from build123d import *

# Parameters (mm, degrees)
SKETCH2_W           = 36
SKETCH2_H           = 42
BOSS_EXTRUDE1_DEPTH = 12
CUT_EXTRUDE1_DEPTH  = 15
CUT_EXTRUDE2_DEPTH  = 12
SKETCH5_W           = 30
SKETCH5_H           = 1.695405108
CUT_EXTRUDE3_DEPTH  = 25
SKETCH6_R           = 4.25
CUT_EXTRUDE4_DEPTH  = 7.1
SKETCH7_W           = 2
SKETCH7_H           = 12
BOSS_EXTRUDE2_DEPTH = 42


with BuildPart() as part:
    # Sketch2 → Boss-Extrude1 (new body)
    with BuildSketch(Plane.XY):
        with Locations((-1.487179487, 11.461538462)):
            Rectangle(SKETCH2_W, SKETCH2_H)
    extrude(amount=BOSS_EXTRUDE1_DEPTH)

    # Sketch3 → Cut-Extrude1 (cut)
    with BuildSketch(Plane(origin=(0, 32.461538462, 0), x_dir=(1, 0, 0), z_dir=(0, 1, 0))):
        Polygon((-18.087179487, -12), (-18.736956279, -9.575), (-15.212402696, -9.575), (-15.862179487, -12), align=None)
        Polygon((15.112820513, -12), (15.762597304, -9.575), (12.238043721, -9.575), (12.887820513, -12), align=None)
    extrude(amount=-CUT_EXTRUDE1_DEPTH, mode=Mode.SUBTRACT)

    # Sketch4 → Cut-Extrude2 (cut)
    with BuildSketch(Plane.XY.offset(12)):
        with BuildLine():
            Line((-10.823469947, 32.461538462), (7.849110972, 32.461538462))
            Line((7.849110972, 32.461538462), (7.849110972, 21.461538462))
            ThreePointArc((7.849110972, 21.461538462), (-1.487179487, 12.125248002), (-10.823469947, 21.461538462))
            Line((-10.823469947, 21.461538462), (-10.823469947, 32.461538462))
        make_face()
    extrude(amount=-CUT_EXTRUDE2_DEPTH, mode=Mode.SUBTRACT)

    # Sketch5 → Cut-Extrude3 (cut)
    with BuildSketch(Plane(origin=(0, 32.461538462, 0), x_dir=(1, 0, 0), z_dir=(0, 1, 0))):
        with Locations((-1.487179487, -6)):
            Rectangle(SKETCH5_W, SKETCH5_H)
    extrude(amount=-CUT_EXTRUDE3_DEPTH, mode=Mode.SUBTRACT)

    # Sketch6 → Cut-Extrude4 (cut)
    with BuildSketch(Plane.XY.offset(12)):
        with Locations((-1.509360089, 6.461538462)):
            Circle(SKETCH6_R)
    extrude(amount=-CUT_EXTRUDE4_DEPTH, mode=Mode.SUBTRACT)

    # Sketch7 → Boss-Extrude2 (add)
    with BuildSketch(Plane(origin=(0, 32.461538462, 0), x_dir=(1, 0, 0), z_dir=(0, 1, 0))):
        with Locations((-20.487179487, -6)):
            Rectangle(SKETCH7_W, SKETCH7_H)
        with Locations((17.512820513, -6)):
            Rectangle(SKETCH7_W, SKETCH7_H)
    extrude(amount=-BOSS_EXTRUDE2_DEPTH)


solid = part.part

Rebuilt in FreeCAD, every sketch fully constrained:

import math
import FreeCAD as App
import Part
import Sketcher
Q = App.Units.Quantity

doc = App.newDocument("Part")
body = doc.addObject("PartDesign::Body", "Body")

# Sketch on XY plane
sketch1 = body.newObject("Sketcher::SketchObject", "Sketch")
sketch1.AttachmentSupport = (doc.getObject("XY_Plane"), [""])
sketch1.MapMode = "FlatFace"
sketch1.addGeometry([
    Part.LineSegment(App.Vector(-19, 32, 0), App.Vector(-19, -10, 0)),
    Part.LineSegment(App.Vector(-19, -10, 0), App.Vector(17, -10, 0)),
    Part.LineSegment(App.Vector(17, -10, 0), App.Vector(17, 32, 0)),
    Part.LineSegment(App.Vector(17, 32, 0), App.Vector(-19, 32, 0)),
], False)
sketch1.addConstraint([
    Sketcher.Constraint("Coincident", 0, 2, 1, 1),
    Sketcher.Constraint("Coincident", 1, 2, 2, 1),
    Sketcher.Constraint("Coincident", 2, 2, 3, 1),
    Sketcher.Constraint("Coincident", 3, 2, 0, 1),
    Sketcher.Constraint("Vertical", 0),
    Sketcher.Constraint("Horizontal", 1),
    Sketcher.Constraint("Vertical", 2),
    Sketcher.Constraint("Horizontal", 3),
    Sketcher.Constraint("DistanceX", 1, 1, 1, 2, 36.0),
    Sketcher.Constraint("DistanceY", 0, 2, 0, 1, 42.0),
    Sketcher.Constraint("DistanceX", 0, 2, -1, 1, 19.487179),
    Sketcher.Constraint("DistanceY", 0, 2, -1, 1, 9.538462),
])
pad1 = body.newObject("PartDesign::Pad", "Pad")
pad1.Profile = sketch1
pad1.Length = 12

# Sketch on XZ plane
sketch2 = body.newObject("Sketcher::SketchObject", "Sketch001")
sketch2.AttachmentSupport = (doc.getObject("XZ_Plane"), [""])
sketch2.MapMode = "FlatFace"
sketch2.AttachmentOffset = App.Placement(App.Vector(0, 0, -32.461538), App.Rotation())
sketch2.addGeometry([
    Part.LineSegment(App.Vector(-18.7, 9.6, 0), App.Vector(-18.1, 12, 0)),  # 0
    Part.LineSegment(App.Vector(-18.1, 12, 0), App.Vector(-15.9, 12, 0)),  # 1
    Part.LineSegment(App.Vector(-15.9, 12, 0), App.Vector(-15.2, 9.6, 0)),  # 2
    Part.LineSegment(App.Vector(-15.2, 9.6, 0), App.Vector(-18.7, 9.6, 0)),  # 3
    Part.LineSegment(App.Vector(15.1, 12, 0), App.Vector(15.8, 9.6, 0)),  # 4
    Part.LineSegment(App.Vector(15.8, 9.6, 0), App.Vector(12.2, 9.6, 0)),  # 5
    Part.LineSegment(App.Vector(12.2, 9.6, 0), App.Vector(12.9, 12, 0)),  # 6
    Part.LineSegment(App.Vector(12.9, 12, 0), App.Vector(15.1, 12, 0)),  # 7
], False)
sketch2.addConstraint([
    Sketcher.Constraint("Coincident", 0, 2, 1, 1),
    Sketcher.Constraint("Coincident", 1, 2, 2, 1),
    Sketcher.Constraint("Coincident", 2, 2, 3, 1),
    Sketcher.Constraint("Coincident", 3, 2, 0, 1),
    Sketcher.Constraint("Coincident", 4, 2, 5, 1),
    Sketcher.Constraint("Coincident", 5, 2, 6, 1),
    Sketcher.Constraint("Coincident", 6, 2, 7, 1),
    Sketcher.Constraint("Coincident", 7, 2, 4, 1),
    Sketcher.Constraint("Horizontal", 1),
    Sketcher.Constraint("Horizontal", 3),
    Sketcher.Constraint("Horizontal", 5),
    Sketcher.Constraint("Horizontal", 7),
    Sketcher.Constraint("Parallel", 2, 4),
    Sketcher.Constraint("Parallel", 0, 6),
    Sketcher.Constraint("Horizontal", 3, 2, 4, 2),
    Sketcher.Constraint("Horizontal", 1, 2, 6, 2),
    Sketcher.Constraint("Equal", 3, 5),
    Sketcher.Constraint("Equal", 0, 2),
    Sketcher.Constraint("Angle", 0, Q("75 deg")),
    Sketcher.Constraint("DistanceY", -1, 1, 0, 2, 12.0),
    Sketcher.Constraint("DistanceX", 1, 1, 1, 2, 2.225),
    Sketcher.Constraint("DistanceX", 1, 2, 6, 2, 28.75),
    Sketcher.Constraint("DistanceY", -1, 1, 2, 2, 9.575),
    Sketcher.Constraint("DistanceX", 0, 2, -1, 1, 18.087179),
])
pocket1 = body.newObject("PartDesign::Pocket", "Pocket")
pocket1.Profile = sketch2
pocket1.Length = 15
pocket1.Reversed = True

# Sketch on XY plane
sketch3 = body.newObject("Sketcher::SketchObject", "Sketch002")
sketch3.AttachmentSupport = (doc.getObject("XY_Plane"), [""])
sketch3.MapMode = "FlatFace"
sketch3.AttachmentOffset = App.Placement(App.Vector(0, 0, 12), App.Rotation())
sketch3.addGeometry([
    Part.LineSegment(App.Vector(8, 32, 0), App.Vector(-11, 32, 0)),
    Part.LineSegment(App.Vector(-11, 32, 0), App.Vector(-11, 21, 0)),
    Part.ArcOfCircle(Part.Circle(App.Vector(-1, 21, 0), App.Vector(0, 0, 1), 9), math.radians(180), math.radians(360)),
    Part.LineSegment(App.Vector(8, 21, 0), App.Vector(8, 32, 0)),
], False)
sketch3.addConstraint([
    Sketcher.Constraint("Coincident", 0, 2, 1, 1),
    Sketcher.Constraint("Tangent", 1, 2, 2, 1),
    Sketcher.Constraint("Tangent", 2, 2, 3, 1),
    Sketcher.Constraint("Coincident", 3, 2, 0, 1),
    Sketcher.Constraint("Horizontal", 0),
    Sketcher.Constraint("Vertical", 1),
    Sketcher.Constraint("Vertical", 3),
    Sketcher.Constraint("DistanceY", 1, 2, 1, 1, 11.0),
    Sketcher.Constraint("Radius", 2, 9.33629),
    Sketcher.Constraint("DistanceX", 2, 3, -1, 1, 1.487179),
    Sketcher.Constraint("DistanceY", -1, 1, 2, 3, 21.461538),
])
pocket2 = body.newObject("PartDesign::Pocket", "Pocket001")
pocket2.Profile = sketch3
pocket2.Length = 12

# Sketch on XZ plane
sketch4 = body.newObject("Sketcher::SketchObject", "Sketch003")
sketch4.AttachmentSupport = (doc.getObject("XZ_Plane"), [""])
sketch4.MapMode = "FlatFace"
sketch4.AttachmentOffset = App.Placement(App.Vector(0, 0, -32.461538), App.Rotation())
sketch4.addGeometry([
    Part.LineSegment(App.Vector(-16.5, 5.2, 0), App.Vector(-16.5, 6.8, 0)),
    Part.LineSegment(App.Vector(-16.5, 6.8, 0), App.Vector(13.5, 6.8, 0)),
    Part.LineSegment(App.Vector(13.5, 6.8, 0), App.Vector(13.5, 5.2, 0)),
    Part.LineSegment(App.Vector(13.5, 5.2, 0), App.Vector(-16.5, 5.2, 0)),
], False)
sketch4.addConstraint([
    Sketcher.Constraint("Coincident", 0, 2, 1, 1),
    Sketcher.Constraint("Coincident", 1, 2, 2, 1),
    Sketcher.Constraint("Coincident", 2, 2, 3, 1),
    Sketcher.Constraint("Coincident", 3, 2, 0, 1),
    Sketcher.Constraint("Vertical", 0),
    Sketcher.Constraint("Horizontal", 1),
    Sketcher.Constraint("Vertical", 2),
    Sketcher.Constraint("Horizontal", 3),
    Sketcher.Constraint("DistanceX", 1, 1, 1, 2, 30.0),
    Sketcher.Constraint("DistanceY", 0, 1, 0, 2, 1.695405),
    Sketcher.Constraint("DistanceX", 0, 2, -1, 1, 16.487179),
    Sketcher.Constraint("DistanceY", -1, 1, 0, 2, 6.847703),
])
pocket3 = body.newObject("PartDesign::Pocket", "Pocket002")
pocket3.Profile = sketch4
pocket3.Length = 25
pocket3.Reversed = True

# Sketch on XY plane
sketch5 = body.newObject("Sketcher::SketchObject", "Sketch004")
sketch5.AttachmentSupport = (doc.getObject("XY_Plane"), [""])
sketch5.MapMode = "FlatFace"
sketch5.AttachmentOffset = App.Placement(App.Vector(0, 0, 12), App.Rotation())
sketch5.addGeometry(Part.Circle(App.Vector(-1.5, 6.5, 0), App.Vector(0, 0, 1), 4.2), False)
sketch5.addConstraint([
    Sketcher.Constraint("Diameter", 0, 8.5),
    Sketcher.Constraint("DistanceX", 0, 3, -1, 1, 1.50936),
    Sketcher.Constraint("DistanceY", -1, 1, 0, 3, 6.461538),
])
pocket4 = body.newObject("PartDesign::Pocket", "Pocket003")
pocket4.Profile = sketch5
pocket4.Length = 7.1

# Sketch on XZ plane
sketch6 = body.newObject("Sketcher::SketchObject", "Sketch005")
sketch6.AttachmentSupport = (doc.getObject("XZ_Plane"), [""])
sketch6.MapMode = "FlatFace"
sketch6.AttachmentOffset = App.Placement(App.Vector(0, 0, -32.461538), App.Rotation())
sketch6.addGeometry([
    Part.LineSegment(App.Vector(-21.5, 0, 0), App.Vector(-21.5, 12, 0)),  # 0
    Part.LineSegment(App.Vector(-21.5, 12, 0), App.Vector(-19.5, 12, 0)),  # 1
    Part.LineSegment(App.Vector(-19.5, 12, 0), App.Vector(-19.5, 0, 0)),  # 2
    Part.LineSegment(App.Vector(-19.5, 0, 0), App.Vector(-21.5, 0, 0)),  # 3
    Part.LineSegment(App.Vector(16.5, 0, 0), App.Vector(16.5, 12, 0)),  # 4
    Part.LineSegment(App.Vector(16.5, 12, 0), App.Vector(18.5, 12, 0)),  # 5
    Part.LineSegment(App.Vector(18.5, 12, 0), App.Vector(18.5, 0, 0)),  # 6
    Part.LineSegment(App.Vector(18.5, 0, 0), App.Vector(16.5, 0, 0)),  # 7
], False)
sketch6.addConstraint([
    Sketcher.Constraint("Coincident", 0, 2, 1, 1),
    Sketcher.Constraint("Coincident", 1, 2, 2, 1),
    Sketcher.Constraint("Coincident", 2, 2, 3, 1),
    Sketcher.Constraint("Coincident", 3, 2, 0, 1),
    Sketcher.Constraint("Coincident", 4, 2, 5, 1),
    Sketcher.Constraint("Coincident", 5, 2, 6, 1),
    Sketcher.Constraint("Coincident", 6, 2, 7, 1),
    Sketcher.Constraint("Coincident", 7, 2, 4, 1),
    Sketcher.Constraint("Vertical", 0),
    Sketcher.Constraint("Horizontal", 1),
    Sketcher.Constraint("Vertical", 2),
    Sketcher.Constraint("Horizontal", 3),
    Sketcher.Constraint("Vertical", 4),
    Sketcher.Constraint("Horizontal", 5),
    Sketcher.Constraint("Vertical", 6),
    Sketcher.Constraint("Horizontal", 7),
    Sketcher.Constraint("PointOnObject", 2, 2, -1),
    Sketcher.Constraint("PointOnObject", 6, 2, -1),
    Sketcher.Constraint("Horizontal", 1, 2, 4, 2),
    Sketcher.Constraint("Equal", 3, 5),
    Sketcher.Constraint("DistanceX", 1, 1, 1, 2, 2.0),
    Sketcher.Constraint("DistanceY", 0, 1, 0, 2, 12.0),
    Sketcher.Constraint("DistanceX", 1, 2, 4, 2, 36.0),
    Sketcher.Constraint("DistanceX", 0, 2, -1, 1, 21.487179),
])
pad2 = body.newObject("PartDesign::Pad", "Pad001")
pad2.Profile = sketch6
pad2.Length = 42

doc.recompute()
